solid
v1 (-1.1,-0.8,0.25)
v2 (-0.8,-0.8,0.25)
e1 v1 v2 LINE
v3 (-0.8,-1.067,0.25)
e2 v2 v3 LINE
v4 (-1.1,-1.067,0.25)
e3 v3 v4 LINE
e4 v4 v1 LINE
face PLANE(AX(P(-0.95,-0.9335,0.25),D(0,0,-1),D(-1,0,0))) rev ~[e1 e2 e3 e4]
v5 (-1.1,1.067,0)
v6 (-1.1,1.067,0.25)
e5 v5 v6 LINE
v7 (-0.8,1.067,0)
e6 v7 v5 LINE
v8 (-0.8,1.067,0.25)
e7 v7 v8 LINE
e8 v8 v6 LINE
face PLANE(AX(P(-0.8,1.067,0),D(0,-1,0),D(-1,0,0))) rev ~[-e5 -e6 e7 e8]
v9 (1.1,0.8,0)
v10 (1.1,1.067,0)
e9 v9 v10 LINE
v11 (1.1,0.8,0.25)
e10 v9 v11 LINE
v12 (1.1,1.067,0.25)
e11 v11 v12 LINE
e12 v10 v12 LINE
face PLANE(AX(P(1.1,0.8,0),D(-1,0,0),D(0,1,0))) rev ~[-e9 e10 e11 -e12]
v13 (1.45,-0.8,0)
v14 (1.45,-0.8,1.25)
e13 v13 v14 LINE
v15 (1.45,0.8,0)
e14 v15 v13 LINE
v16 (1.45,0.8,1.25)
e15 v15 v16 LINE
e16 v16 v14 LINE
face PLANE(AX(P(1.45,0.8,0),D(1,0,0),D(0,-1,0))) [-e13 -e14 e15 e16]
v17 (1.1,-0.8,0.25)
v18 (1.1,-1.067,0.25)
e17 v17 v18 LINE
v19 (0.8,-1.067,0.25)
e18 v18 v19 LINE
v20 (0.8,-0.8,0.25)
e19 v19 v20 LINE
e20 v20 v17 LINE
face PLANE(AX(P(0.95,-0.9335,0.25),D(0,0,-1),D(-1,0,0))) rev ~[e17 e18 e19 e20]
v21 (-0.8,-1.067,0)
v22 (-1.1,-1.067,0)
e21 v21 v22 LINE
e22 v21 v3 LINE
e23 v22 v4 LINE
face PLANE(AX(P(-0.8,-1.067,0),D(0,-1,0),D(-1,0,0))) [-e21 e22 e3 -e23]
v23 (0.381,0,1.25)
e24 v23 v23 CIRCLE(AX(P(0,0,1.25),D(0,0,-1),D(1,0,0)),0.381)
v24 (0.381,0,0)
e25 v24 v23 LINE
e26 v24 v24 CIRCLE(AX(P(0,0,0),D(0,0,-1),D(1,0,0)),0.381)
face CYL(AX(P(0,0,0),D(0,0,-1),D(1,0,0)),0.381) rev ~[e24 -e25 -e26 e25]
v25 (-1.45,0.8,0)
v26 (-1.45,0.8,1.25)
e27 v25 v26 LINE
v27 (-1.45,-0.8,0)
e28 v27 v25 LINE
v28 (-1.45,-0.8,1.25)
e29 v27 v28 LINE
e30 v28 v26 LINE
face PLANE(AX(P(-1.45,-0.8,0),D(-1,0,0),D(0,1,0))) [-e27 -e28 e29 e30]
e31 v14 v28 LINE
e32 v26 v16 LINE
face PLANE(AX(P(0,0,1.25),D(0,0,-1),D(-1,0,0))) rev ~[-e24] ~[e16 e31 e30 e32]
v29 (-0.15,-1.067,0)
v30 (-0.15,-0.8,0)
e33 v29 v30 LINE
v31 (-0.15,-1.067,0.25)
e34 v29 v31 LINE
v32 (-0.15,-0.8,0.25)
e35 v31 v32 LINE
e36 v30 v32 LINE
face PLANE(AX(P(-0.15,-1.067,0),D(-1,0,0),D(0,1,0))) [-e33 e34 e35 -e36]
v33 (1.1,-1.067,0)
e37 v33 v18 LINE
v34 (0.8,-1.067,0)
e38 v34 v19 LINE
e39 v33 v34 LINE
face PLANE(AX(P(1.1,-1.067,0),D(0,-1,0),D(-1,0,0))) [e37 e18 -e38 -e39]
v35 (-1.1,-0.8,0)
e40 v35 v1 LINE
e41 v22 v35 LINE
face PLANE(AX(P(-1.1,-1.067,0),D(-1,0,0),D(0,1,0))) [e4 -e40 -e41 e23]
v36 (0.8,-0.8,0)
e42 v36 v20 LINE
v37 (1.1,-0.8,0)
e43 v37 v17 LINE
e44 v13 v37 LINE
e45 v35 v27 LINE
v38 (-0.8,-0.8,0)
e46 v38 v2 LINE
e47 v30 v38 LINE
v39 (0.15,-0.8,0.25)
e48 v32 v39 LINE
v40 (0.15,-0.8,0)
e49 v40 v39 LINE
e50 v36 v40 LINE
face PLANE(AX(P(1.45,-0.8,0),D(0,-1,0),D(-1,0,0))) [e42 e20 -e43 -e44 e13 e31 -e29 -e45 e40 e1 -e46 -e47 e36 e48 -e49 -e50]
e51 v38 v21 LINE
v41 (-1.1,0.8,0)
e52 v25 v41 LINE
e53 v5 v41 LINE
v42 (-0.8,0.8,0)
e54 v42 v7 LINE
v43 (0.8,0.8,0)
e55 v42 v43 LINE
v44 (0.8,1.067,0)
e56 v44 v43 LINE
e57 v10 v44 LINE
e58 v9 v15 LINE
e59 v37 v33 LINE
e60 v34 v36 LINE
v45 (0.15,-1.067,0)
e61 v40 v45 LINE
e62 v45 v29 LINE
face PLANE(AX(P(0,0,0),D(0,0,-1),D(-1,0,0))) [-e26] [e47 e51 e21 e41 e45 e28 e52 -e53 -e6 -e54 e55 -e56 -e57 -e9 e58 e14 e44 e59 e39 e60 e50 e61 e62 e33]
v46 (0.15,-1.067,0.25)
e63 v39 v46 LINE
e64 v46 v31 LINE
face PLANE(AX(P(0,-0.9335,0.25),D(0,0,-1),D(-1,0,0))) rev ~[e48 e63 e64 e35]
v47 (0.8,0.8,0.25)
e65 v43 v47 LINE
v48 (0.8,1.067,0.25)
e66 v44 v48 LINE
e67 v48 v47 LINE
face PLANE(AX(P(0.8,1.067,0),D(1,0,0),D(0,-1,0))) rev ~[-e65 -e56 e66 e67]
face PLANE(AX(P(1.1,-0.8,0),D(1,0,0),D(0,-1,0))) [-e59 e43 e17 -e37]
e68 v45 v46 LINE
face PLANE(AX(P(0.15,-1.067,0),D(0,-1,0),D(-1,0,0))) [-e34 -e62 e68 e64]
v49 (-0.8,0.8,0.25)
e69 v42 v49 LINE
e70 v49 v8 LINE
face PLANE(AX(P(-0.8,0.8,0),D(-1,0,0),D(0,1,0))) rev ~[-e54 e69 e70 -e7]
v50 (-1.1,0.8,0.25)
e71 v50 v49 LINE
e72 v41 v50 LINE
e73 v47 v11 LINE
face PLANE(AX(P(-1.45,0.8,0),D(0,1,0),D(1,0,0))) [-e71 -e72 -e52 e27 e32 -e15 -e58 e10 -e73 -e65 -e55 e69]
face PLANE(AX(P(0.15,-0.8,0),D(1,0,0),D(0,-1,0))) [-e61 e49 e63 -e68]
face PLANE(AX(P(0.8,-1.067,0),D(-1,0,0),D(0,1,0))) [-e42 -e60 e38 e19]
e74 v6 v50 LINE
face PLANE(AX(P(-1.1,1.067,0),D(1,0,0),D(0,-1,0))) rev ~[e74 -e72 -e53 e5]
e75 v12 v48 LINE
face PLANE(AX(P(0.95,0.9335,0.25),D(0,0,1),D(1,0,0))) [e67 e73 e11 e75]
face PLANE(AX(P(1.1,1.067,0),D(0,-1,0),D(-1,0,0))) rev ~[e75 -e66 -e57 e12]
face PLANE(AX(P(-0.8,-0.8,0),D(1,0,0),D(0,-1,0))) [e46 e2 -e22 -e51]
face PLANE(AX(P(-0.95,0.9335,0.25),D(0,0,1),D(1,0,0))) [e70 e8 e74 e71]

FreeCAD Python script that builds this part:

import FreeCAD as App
import Part
import Sketcher

V = App.Vector
Q = App.Units.Quantity

doc = App.newDocument("Part")
body = doc.addObject("PartDesign::Body", "Body")

sketch1 = body.newObject("Sketcher::SketchObject", "Sketch")
sketch1.AttachmentSupport = (doc.getObject("XY_Plane"), [""])
sketch1.MapMode = "FlatFace"
sketch1.addGeometry([
    Part.LineSegment(V(-1.4, -0.8, 0), V(1.4, -0.8, 0)),
    Part.LineSegment(V(1.4, -0.8, 0), V(1.4, 0.8, 0)),
    Part.LineSegment(V(1.4, 0.8, 0), V(-1.4, 0.8, 0)),
    Part.LineSegment(V(-1.4, 0.8, 0), V(-1.4, -0.8, 0)),
], False)
sketch1.addConstraint([
    Sketcher.Constraint("Coincident", 0, 2, 1, 1),
    Sketcher.Constraint("Coincident", 1, 2, 2, 1),
    Sketcher.Constraint("Coincident", 2, 2, 3, 1),
    Sketcher.Constraint("Coincident", 3, 2, 0, 1),
    Sketcher.Constraint("Horizontal", 0),
    Sketcher.Constraint("Vertical", 1),
    Sketcher.Constraint("Horizontal", 2),
    Sketcher.Constraint("Vertical", 3),
    Sketcher.Constraint("Symmetric", 0, 2, 2, 2, -1, 1),
    Sketcher.Constraint("DistanceY", 1, 1, 1, 2, Q("0.063 in")),
    Sketcher.Constraint("DistanceX", 0, 1, 0, 2, 2.9),
])
pad1 = body.newObject("PartDesign::Pad", "Pad")
pad1.Profile = sketch1
pad1.Length = 1.25

sketch2 = body.newObject("Sketcher::SketchObject", "Sketch001")
sketch2.AttachmentSupport = (doc.getObject("XY_Plane"), [""])
sketch2.MapMode = "FlatFace"
sketch2.addGeometry([
    Part.LineSegment(V(-0.8, -0.8, 0), V(-0.8, -1.07, 0)),
    Part.LineSegment(V(-0.8, -1.07, 0), V(-1.1, -1.07, 0)),
    Part.LineSegment(V(-1.1, -1.07, 0), V(-1.1, -0.8, 0)),
    Part.LineSegment(V(-1.1, -0.8, 0), V(-0.8, -0.8, 0)),
    Part.LineSegment(V(0.15, -0.8, 0), V(0.15, -1.07, 0)),
    Part.LineSegment(V(0.15, -1.07, 0), V(-0.15, -1.07, 0)),
    Part.LineSegment(V(-0.15, -1.07, 0), V(-0.15, -0.8, 0)),
    Part.LineSegment(V(-0.15, -0.8, 0), V(0.15, -0.8, 0)),
    Part.LineSegment(V(1.1, -0.8, 0), V(1.1, -1.07, 0)),
    Part.LineSegment(V(1.1, -1.07, 0), V(0.8, -1.07, 0)),
    Part.LineSegment(V(0.8, -1.07, 0), V(0.8, -0.8, 0)),
    Part.LineSegment(V(0.8, -0.8, 0), V(1.1, -0.8, 0)),
    Part.LineSegment(V(0.8, 1.07, 0), V(1.1, 1.07, 0)),
    Part.LineSegment(V(1.1, 1.07, 0), V(1.1, 0.8, 0)),
    Part.LineSegment(V(1.1, 0.8, 0), V(0.8, 0.8, 0)),
    Part.LineSegment(V(0.8, 0.8, 0), V(0.8, 1.07, 0)),
    Part.LineSegment(V(-1.1, 1.07, 0), V(-0.8, 1.07, 0)),
    Part.LineSegment(V(-0.8, 1.07, 0), V(-0.8, 0.8, 0)),
    Part.LineSegment(V(-0.8, 0.8, 0), V(-1.1, 0.8, 0)),
    Part.LineSegment(V(-1.1, 0.8, 0), V(-1.1, 1.07, 0)),
], False)
sketch2.addConstraint([
    Sketcher.Constraint("Coincident", 0, 2, 1, 1),
    Sketcher.Constraint("Coincident", 1, 2, 2, 1),
    Sketcher.Constraint("Coincident", 2, 2, 3, 1),
    Sketcher.Constraint("Coincident", 3, 2, 0, 1),
    Sketcher.Constraint("Coincident", 4, 2, 5, 1),
    Sketcher.Constraint("Coincident", 5, 2, 6, 1),
    Sketcher.Constraint("Coincident", 6, 2, 7, 1),
    Sketcher.Constraint("Coincident", 7, 2, 4, 1),
    Sketcher.Constraint("Coincident", 8, 2, 9, 1),
    Sketcher.Constraint("Coincident", 9, 2, 10, 1),
    Sketcher.Constraint("Coincident", 10, 2, 11, 1),
    Sketcher.Constraint("Coincident", 11, 2, 8, 1),
    Sketcher.Constraint("Coincident", 12, 2, 13, 1),
    Sketcher.Constraint("Coincident", 13, 2, 14, 1),
    Sketcher.Constraint("Coincident", 14, 2, 15, 1),
    Sketcher.Constraint("Coincident", 15, 2, 12, 1),
    Sketcher.Constraint("Coincident", 16, 2, 17, 1),
    Sketcher.Constraint("Coincident", 17, 2, 18, 1),
    Sketcher.Constraint("Coincident", 18, 2, 19, 1),
    Sketcher.Constraint("Coincident", 19, 2, 16, 1),
    Sketcher.Constraint("Vertical", 0),
    Sketcher.Constraint("Horizontal", 1),
    Sketcher.Constraint("Vertical", 2),
    Sketcher.Constraint("Horizontal", 3),
    Sketcher.Constraint("Vertical", 4),
    Sketcher.Constraint("Horizontal", 5),
    Sketcher.Constraint("Vertical", 6),
    Sketcher.Constraint("Horizontal", 7),
    Sketcher.Constraint("Vertical", 8),
    Sketcher.Constraint("Horizontal", 9),
    Sketcher.Constraint("Vertical", 10),
    Sketcher.Constraint("Horizontal", 11),
    Sketcher.Constraint("Horizontal", 12),
    Sketcher.Constraint("Vertical", 13),
    Sketcher.Constraint("Horizontal", 14),
    Sketcher.Constraint("Vertical", 15),
    Sketcher.Constraint("Horizontal", 16),
    Sketcher.Constraint("Vertical", 17),
    Sketcher.Constraint("Horizontal", 18),
    Sketcher.Constraint("Vertical", 19),
    Sketcher.Constraint("Symmetric", 1, 2, 12, 2, -1, 1),
    Sketcher.Constraint("Symmetric", 3, 2, 14, 2, -1, 1),
    Sketcher.Constraint("Symmetric", 9, 2, 16, 2, -1, 1),
    Sketcher.Constraint("Symmetric", 11, 2, 18, 2, -1, 1),
    Sketcher.Constraint("Symmetric", 1, 2, 8, 2, -2),
    Sketcher.Constraint("Symmetric", 3, 2, 10, 2, -2),
    Sketcher.Constraint("Horizontal", 1, 2, 4, 2),
    Sketcher.Constraint("Horizontal", 3, 2, 6, 2),
    Sketcher.Constraint("Equal", 3, 5),
    Sketcher.Constraint("DistanceX", 1, 2, 1, 1, Q("0.0118 in")),
    Sketcher.Constraint("DistanceY", 0, 2, 0, 1, Q("0.0105 in")),
    Sketcher.Constraint("DistanceY", 0, 2, -1, 1, Q("0.042 in")),
    Sketcher.Constraint("DistanceX", 16, 2, 15, 2, Q("0.063 in")),
    Sketcher.Constraint("DistanceX", -1, 1, 4, 2, Q("0.0059 in")),
])
pad2 = body.newObject("PartDesign::Pad", "Pad001")
pad2.Profile = sketch2
pad2.Length = 0.25

sketch3 = body.newObject("Sketcher::SketchObject", "Sketch002")
sketch3.AttachmentSupport = (doc.getObject("XY_Plane"), [""])
sketch3.MapMode = "FlatFace"
sketch3.addGeometry(Part.Circle(V(0, 0, 0), V(0, 0, 1), 0.38), False)
sketch3.addConstraint([
    Sketcher.Constraint("Coincident", 0, 3, -1, 1),
    Sketcher.Constraint("Diameter", 0, Q("0.03 in")),
])
pocket1 = body.newObject("PartDesign::Pocket", "Pocket")
pocket1.Profile = sketch3
pocket1.Type = "ThroughAll"
pocket1.Reversed = True

doc.recompute()
